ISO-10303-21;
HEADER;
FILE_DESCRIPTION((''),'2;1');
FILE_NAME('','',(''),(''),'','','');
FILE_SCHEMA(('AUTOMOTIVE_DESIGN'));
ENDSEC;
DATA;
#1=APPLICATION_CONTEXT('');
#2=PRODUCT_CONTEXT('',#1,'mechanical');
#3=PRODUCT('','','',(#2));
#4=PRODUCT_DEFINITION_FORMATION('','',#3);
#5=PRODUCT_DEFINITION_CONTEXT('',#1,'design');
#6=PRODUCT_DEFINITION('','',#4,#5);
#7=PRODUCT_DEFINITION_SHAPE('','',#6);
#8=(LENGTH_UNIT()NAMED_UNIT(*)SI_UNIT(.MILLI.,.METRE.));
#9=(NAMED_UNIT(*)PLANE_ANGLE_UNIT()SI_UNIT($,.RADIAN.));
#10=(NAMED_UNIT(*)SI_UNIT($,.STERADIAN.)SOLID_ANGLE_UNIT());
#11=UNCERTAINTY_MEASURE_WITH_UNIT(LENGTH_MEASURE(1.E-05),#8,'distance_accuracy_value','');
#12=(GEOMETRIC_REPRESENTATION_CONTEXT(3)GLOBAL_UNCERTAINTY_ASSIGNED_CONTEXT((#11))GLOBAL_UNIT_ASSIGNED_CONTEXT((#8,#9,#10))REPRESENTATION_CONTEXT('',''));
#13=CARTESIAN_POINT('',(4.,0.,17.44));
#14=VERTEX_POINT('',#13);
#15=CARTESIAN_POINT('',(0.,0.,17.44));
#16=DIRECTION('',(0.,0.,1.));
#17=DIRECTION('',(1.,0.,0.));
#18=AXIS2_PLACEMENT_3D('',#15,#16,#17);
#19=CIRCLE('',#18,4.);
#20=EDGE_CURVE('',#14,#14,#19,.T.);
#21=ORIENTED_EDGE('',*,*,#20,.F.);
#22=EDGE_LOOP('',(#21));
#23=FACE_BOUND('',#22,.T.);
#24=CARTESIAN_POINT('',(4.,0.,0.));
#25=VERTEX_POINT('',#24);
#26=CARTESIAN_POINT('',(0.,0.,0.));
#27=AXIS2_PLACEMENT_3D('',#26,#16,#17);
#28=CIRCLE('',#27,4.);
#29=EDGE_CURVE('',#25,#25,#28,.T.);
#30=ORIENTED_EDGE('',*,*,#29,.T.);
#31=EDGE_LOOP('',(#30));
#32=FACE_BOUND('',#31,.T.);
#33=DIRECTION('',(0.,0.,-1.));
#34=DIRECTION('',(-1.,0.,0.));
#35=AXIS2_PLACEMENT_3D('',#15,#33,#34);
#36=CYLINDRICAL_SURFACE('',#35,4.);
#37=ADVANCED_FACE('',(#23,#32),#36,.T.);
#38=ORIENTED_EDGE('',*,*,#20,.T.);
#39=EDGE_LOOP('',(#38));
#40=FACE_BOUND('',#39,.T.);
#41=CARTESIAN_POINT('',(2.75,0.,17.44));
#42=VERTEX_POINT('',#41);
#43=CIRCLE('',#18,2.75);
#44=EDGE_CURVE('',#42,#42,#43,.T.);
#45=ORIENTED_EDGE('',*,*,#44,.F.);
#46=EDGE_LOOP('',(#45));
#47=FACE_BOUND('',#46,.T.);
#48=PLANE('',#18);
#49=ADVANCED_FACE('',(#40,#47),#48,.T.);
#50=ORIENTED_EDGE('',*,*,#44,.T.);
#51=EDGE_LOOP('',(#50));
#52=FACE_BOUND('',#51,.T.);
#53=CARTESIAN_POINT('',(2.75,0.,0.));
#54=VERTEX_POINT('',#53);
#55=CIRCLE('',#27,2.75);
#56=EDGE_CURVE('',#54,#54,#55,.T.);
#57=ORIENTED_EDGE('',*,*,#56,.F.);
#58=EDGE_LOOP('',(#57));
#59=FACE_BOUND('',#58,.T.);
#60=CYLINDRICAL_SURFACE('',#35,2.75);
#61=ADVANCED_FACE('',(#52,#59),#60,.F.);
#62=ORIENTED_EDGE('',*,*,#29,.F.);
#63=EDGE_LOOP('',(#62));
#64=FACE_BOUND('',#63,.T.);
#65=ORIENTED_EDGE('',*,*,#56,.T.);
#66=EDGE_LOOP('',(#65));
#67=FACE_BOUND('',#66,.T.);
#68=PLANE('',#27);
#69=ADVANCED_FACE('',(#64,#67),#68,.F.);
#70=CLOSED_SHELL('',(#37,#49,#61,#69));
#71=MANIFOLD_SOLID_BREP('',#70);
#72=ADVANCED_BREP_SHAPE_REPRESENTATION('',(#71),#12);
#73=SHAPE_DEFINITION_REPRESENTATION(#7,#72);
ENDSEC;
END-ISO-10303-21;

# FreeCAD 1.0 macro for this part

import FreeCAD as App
import Part
import Sketcher

V = App.Vector
Q = App.Units.Quantity

doc = App.newDocument("Part")
body = doc.addObject("PartDesign::Body", "Body")

sketch1 = doc.addObject("Sketcher::SketchObject", "Sketch")
body.addObject(sketch1)
sketch1.AttachmentSupport = (doc.XY_Plane, [""])
sketch1.MapMode = "FlatFace"
sketch1.addGeometry([
    Part.Circle(V(0, 0, 0), V(0, 0, 1), 4),
    Part.Circle(V(0, 0, 0), V(0, 0, 1), 2.8),
], False)
sketch1.addConstraint([
    Sketcher.Constraint("Coincident", 0, 3, -1, 1),
    Sketcher.Constraint("Coincident", 1, 3, -1, 1),
    Sketcher.Constraint("Diameter", 0, Q("8 mm")),
    Sketcher.Constraint("Diameter", 1, Q("5.5 mm")),
])
pad1 = doc.addObject("PartDesign::Pad", "Pad")
body.addObject(pad1)
pad1.Profile = sketch1
pad1.Length = 17.44

doc.recompute()
